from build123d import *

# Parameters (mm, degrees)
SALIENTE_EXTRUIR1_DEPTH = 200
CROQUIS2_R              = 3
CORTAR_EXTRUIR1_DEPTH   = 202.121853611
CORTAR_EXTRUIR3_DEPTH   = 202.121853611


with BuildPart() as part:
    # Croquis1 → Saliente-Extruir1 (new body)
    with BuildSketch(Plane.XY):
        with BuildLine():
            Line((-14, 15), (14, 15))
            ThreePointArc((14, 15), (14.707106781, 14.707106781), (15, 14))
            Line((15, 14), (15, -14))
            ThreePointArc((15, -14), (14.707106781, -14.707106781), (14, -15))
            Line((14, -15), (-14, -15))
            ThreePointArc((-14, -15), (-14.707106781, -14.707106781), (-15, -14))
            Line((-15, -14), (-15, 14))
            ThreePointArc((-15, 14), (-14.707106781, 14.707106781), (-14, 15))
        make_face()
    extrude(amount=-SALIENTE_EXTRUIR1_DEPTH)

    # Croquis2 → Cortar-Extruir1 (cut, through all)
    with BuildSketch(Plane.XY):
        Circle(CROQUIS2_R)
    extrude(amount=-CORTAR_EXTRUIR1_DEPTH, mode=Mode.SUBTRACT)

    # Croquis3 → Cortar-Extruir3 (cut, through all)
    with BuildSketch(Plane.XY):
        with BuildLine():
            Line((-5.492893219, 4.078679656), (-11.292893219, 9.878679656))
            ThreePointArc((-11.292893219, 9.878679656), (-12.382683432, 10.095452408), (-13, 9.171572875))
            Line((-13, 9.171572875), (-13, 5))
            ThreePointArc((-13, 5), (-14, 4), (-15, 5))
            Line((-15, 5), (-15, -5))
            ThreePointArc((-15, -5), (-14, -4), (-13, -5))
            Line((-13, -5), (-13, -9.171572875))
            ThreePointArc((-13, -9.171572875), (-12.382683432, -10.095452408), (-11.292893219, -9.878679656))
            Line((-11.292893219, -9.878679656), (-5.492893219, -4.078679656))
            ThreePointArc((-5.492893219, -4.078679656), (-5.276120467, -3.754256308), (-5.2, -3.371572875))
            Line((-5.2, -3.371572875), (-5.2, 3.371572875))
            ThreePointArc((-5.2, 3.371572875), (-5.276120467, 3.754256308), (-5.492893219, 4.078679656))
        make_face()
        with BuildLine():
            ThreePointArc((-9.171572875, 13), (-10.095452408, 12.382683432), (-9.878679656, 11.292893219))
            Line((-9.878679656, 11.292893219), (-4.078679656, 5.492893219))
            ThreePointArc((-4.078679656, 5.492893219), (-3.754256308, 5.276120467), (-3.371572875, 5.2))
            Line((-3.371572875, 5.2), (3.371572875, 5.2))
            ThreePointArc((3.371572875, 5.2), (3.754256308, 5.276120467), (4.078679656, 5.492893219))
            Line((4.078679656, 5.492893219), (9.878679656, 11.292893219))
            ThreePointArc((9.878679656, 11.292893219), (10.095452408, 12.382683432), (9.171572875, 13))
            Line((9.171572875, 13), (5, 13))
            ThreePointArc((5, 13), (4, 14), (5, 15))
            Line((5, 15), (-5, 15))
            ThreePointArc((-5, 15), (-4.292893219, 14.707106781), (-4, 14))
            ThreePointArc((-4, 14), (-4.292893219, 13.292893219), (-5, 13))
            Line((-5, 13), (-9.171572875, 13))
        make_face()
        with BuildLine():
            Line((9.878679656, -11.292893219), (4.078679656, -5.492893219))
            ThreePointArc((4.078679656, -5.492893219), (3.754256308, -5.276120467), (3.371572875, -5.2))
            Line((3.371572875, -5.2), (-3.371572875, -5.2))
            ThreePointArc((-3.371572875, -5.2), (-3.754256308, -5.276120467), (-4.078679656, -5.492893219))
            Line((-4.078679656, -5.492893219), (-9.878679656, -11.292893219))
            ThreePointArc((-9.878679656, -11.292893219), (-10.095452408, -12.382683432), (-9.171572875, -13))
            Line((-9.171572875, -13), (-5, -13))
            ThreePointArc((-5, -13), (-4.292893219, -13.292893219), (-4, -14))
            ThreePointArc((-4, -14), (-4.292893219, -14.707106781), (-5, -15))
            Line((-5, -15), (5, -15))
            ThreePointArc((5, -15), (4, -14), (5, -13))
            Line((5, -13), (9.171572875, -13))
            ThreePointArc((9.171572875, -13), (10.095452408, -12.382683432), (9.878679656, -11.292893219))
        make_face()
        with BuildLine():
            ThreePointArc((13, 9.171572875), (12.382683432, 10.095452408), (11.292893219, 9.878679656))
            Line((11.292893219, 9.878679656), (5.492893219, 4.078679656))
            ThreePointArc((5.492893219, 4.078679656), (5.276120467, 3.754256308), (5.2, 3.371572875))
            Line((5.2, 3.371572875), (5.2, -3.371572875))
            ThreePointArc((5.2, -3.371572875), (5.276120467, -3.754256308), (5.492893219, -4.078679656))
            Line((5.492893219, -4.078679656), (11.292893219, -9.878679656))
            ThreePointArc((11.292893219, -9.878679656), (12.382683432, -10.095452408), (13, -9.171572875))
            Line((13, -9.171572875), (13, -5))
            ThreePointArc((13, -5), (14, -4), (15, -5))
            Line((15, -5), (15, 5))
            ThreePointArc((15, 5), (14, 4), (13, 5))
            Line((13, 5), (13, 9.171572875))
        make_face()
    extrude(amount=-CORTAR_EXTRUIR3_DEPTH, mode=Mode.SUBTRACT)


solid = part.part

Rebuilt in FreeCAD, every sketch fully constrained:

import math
import FreeCAD as App
import Part
import Sketcher
from FreeCAD import Vector
Q = App.Units.Quantity

doc = App.newDocument("Part")
body = doc.addObject("PartDesign::Body", "Body")

# Sketch on XY plane
sketch1 = body.newObject("Sketcher::SketchObject", "Sketch")
sketch1.AttachmentSupport = (doc.getObject("XY_Plane"), [""])
sketch1.MapMode = "FlatFace"
sketch1.addGeometry(Part.LineSegment(Vector(14, 15, 0), Vector(-14, 15, 0)), False)
sketch1.addGeometry(Part.ArcOfCircle(Part.Circle(Vector(-14, 14, 0), Vector(0, 0, 1), 1), math.radians(90), math.radians(180)), False)
sketch1.addGeometry(Part.LineSegment(Vector(-15, 14, 0), Vector(-15, -14, 0)), False)
sketch1.addGeometry(Part.ArcOfCircle(Part.Circle(Vector(-14, -14, 0), Vector(0, 0, 1), 1), math.radians(-180), math.radians(-90)), False)
sketch1.addGeometry(Part.LineSegment(Vector(-14, -15, 0), Vector(14, -15, 0)), False)
sketch1.addGeometry(Part.ArcOfCircle(Part.Circle(Vector(14, -14, 0), Vector(0, 0, 1), 1), math.radians(-90), math.radians(0)), False)
sketch1.addGeometry(Part.LineSegment(Vector(15, -14, 0), Vector(15, 14, 0)), False)
sketch1.addGeometry(Part.ArcOfCircle(Part.Circle(Vector(14, 14, 0), Vector(0, 0, 1), 1), math.radians(0), math.radians(90)), False)
sketch1.addConstraint(Sketcher.Constraint("Tangent", 0, 2, 1, 1))
sketch1.addConstraint(Sketcher.Constraint("Tangent", 1, 2, 2, 1))
sketch1.addConstraint(Sketcher.Constraint("Tangent", 2, 2, 3, 1))
sketch1.addConstraint(Sketcher.Constraint("Tangent", 3, 2, 4, 1))
sketch1.addConstraint(Sketcher.Constraint("Tangent", 4, 2, 5, 1))
sketch1.addConstraint(Sketcher.Constraint("Tangent", 5, 2, 6, 1))
sketch1.addConstraint(Sketcher.Constraint("Tangent", 6, 2, 7, 1))
sketch1.addConstraint(Sketcher.Constraint("Tangent", 7, 2, 0, 1))
sketch1.addConstraint(Sketcher.Constraint("Horizontal", 0))
sketch1.addConstraint(Sketcher.Constraint("Vertical", 2))
sketch1.addConstraint(Sketcher.Constraint("Horizontal", 4))
sketch1.addConstraint(Sketcher.Constraint("Vertical", 6))
sketch1.addConstraint(Sketcher.Constraint("Equal", 1, 3))
sketch1.addConstraint(Sketcher.Constraint("Equal", 3, 5))
sketch1.addConstraint(Sketcher.Constraint("Equal", 5, 7))
sketch1.addConstraint(Sketcher.Constraint("Symmetric", 1, 3, 5, 3, -1, 1))
sketch1.addConstraint(Sketcher.Constraint("Equal", 4, 2))
sketch1.addConstraint(Sketcher.Constraint("Radius", 1, Q("1 mm")))
sketch1.addConstraint(Sketcher.Constraint("DistanceX", 0, 2, 0, 1, Q("28 mm")))
pad1 = body.newObject("PartDesign::Pad", "Pad")
pad1.Profile = sketch1
pad1.Length = 200
pad1.Reversed = True

# Sketch on XY plane
sketch2 = body.newObject("Sketcher::SketchObject", "Sketch001")
sketch2.AttachmentSupport = (doc.getObject("XY_Plane"), [""])
sketch2.MapMode = "FlatFace"
sketch2.addGeometry(Part.Circle(Vector(0, 0, 0), Vector(0, 0, 1), 3), False)
sketch2.addConstraint(Sketcher.Constraint("Coincident", 0, 3, -1, 1))
sketch2.addConstraint(Sketcher.Constraint("Diameter", 0, Q("6 mm")))
pocket1 = body.newObject("PartDesign::Pocket", "Pocket")
pocket1.Profile = sketch2
pocket1.Type = "ThroughAll"

# Sketch on XY plane
sketch3 = body.newObject("Sketcher::SketchObject", "Sketch002")
sketch3.AttachmentSupport = (doc.getObject("XY_Plane"), [""])
sketch3.MapMode = "FlatFace"
sketch3.addGeometry(Part.LineSegment(Vector(-5.5, 4.1, 0), Vector(-11.3, 9.9, 0)), False)
sketch3.addGeometry(Part.ArcOfCircle(Part.Circle(Vector(-12, 9.2, 0), Vector(0, 0, 1), 1), math.radians(45), math.radians(180)), False)
sketch3.addGeometry(Part.LineSegment(Vector(-13, 9.2, 0), Vector(-13, 5, 0)), False)
sketch3.addGeometry(Part.ArcOfCircle(Part.Circle(Vector(-14, 5, 0), Vector(0, 0, 1), 1), math.radians(180), math.radians(360)), False)
sketch3.addGeometry(Part.LineSegment(Vector(-15, 5, 0), Vector(-15, -5, 0)), False)
sketch3.addGeometry(Part.ArcOfCircle(Part.Circle(Vector(-14, -5, 0), Vector(0, 0, 1), 1), math.radians(0), math.radians(180)), False)
sketch3.addGeometry(Part.LineSegment(Vector(-13, -5, 0), Vector(-13, -9.2, 0)), False)
sketch3.addGeometry(Part.ArcOfCircle(Part.Circle(Vector(-12, -9.2, 0), Vector(0, 0, 1), 1), math.radians(180), math.radians(315)), False)
sketch3.addGeometry(Part.LineSegment(Vector(-11.3, -9.9, 0), Vector(-5.5, -4.1, 0)), False)
sketch3.addGeometry(Part.ArcOfCircle(Part.Circle(Vector(-6.2, -3.4, 0), Vector(0, 0, 1), 1), math.radians(-45), math.radians(0)), False)
sketch3.addGeometry(Part.LineSegment(Vector(-5.2, -3.4, 0), Vector(-5.2, 3.4, 0)), False)
sketch3.addGeometry(Part.ArcOfCircle(Part.Circle(Vector(-6.2, 3.4, 0), Vector(0, 0, 1), 1), math.radians(0), math.radians(45)), False)
sketch3.addGeometry(Part.ArcOfCircle(Part.Circle(Vector(-9.2, 12, 0), Vector(0, 0, 1), 1), math.radians(90), math.radians(225)), False)
sketch3.addGeometry(Part.LineSegment(Vector(-9.9, 11.3, 0), Vector(-4.1, 5.5, 0)), False)
sketch3.addGeometry(Part.ArcOfCircle(Part.Circle(Vector(-3.4, 6.2, 0), Vector(0, 0, 1), 1), math.radians(-135), math.radians(-90)), False)
sketch3.addGeometry(Part.LineSegment(Vector(-3.4, 5.2, 0), Vector(3.4, 5.2, 0)), False)
sketch3.addGeometry(Part.ArcOfCircle(Part.Circle(Vector(3.4, 6.2, 0), Vector(0, 0, 1), 1), math.radians(-90), math.radians(-45)), False)
sketch3.addGeometry(Part.LineSegment(Vector(4.1, 5.5, 0), Vector(9.9, 11.3, 0)), False)
sketch3.addGeometry(Part.ArcOfCircle(Part.Circle(Vector(9.2, 12, 0), Vector(0, 0, 1), 1), math.radians(-45), math.radians(90)), False)
sketch3.addGeometry(Part.LineSegment(Vector(9.2, 13, 0), Vector(5, 13, 0)), False)
sketch3.addGeometry(Part.ArcOfCircle(Part.Circle(Vector(5, 14, 0), Vector(0, 0, 1), 1), math.radians(90), math.radians(270)), False)
sketch3.addGeometry(Part.LineSegment(Vector(5, 15, 0), Vector(-5, 15, 0)), False)
sketch3.addGeometry(Part.ArcOfCircle(Part.Circle(Vector(-5, 14, 0), Vector(0, 0, 1), 1), math.radians(0), math.radians(90)), False)
sketch3.addGeometry(Part.ArcOfCircle(Part.Circle(Vector(-5, 14, 0), Vector(0, 0, 1), 1), math.radians(-90), math.radians(0)), False)
sketch3.addGeometry(Part.LineSegment(Vector(-5, 13, 0), Vector(-9.2, 13, 0)), False)
sketch3.addGeometry(Part.LineSegment(Vector(9.9, -11.3, 0), Vector(4.1, -5.5, 0)), False)
sketch3.addGeometry(Part.ArcOfCircle(Part.Circle(Vector(3.4, -6.2, 0), Vector(0, 0, 1), 1), math.radians(45), math.radians(90)), False)
sketch3.addGeometry(Part.LineSegment(Vector(3.4, -5.2, 0), Vector(-3.4, -5.2, 0)), False)
sketch3.addGeometry(Part.ArcOfCircle(Part.Circle(Vector(-3.4, -6.2, 0), Vector(0, 0, 1), 1), math.radians(90), math.radians(135)), False)
sketch3.addGeometry(Part.LineSegment(Vector(-4.1, -5.5, 0), Vector(-9.9, -11.3, 0)), False)
sketch3.addGeometry(Part.ArcOfCircle(Part.Circle(Vector(-9.2, -12, 0), Vector(0, 0, 1), 1), math.radians(135), math.radians(270)), False)
sketch3.addGeometry(Part.LineSegment(Vector(-9.2, -13, 0), Vector(-5, -13, 0)), False)
sketch3.addGeometry(Part.ArcOfCircle(Part.Circle(Vector(-5, -14, 0), Vector(0, 0, 1), 1), math.radians(0), math.radians(90)), False)
sketch3.addGeometry(Part.ArcOfCircle(Part.Circle(Vector(-5, -14, 0), Vector(0, 0, 1), 1), math.radians(-90), math.radians(0)), False)
sketch3.addGeometry(Part.LineSegment(Vector(-5, -15, 0), Vector(5, -15, 0)), False)
sketch3.addGeometry(Part.ArcOfCircle(Part.Circle(Vector(5, -14, 0), Vector(0, 0, 1), 1), math.radians(90), math.radians(270)), False)
sketch3.addGeometry(Part.LineSegment(Vector(5, -13, 0), Vector(9.2, -13, 0)), False)
sketch3.addGeometry(Part.ArcOfCircle(Part.Circle(Vector(9.2, -12, 0), Vector(0, 0, 1), 1), math.radians(-90), math.radians(45)), False)
sketch3.addGeometry(Part.ArcOfCircle(Part.Circle(Vector(12, 9.2, 0), Vector(0, 0, 1), 1), math.radians(0), math.radians(135)), False)
sketch3.addGeometry(Part.LineSegment(Vector(11.3, 9.9, 0), Vector(5.5, 4.1, 0)), False)
sketch3.addGeometry(Part.ArcOfCircle(Part.Circle(Vector(6.2, 3.4, 0), Vector(0, 0, 1), 1), math.radians(135), math.radians(180)), False)
sketch3.addGeometry(Part.LineSegment(Vector(5.2, 3.4, 0), Vector(5.2, -3.4, 0)), False)
sketch3.addGeometry(Part.ArcOfCircle(Part.Circle(Vector(6.2, -3.4, 0), Vector(0, 0, 1), 1), math.radians(180), math.radians(225)), False)
sketch3.addGeometry(Part.LineSegment(Vector(5.5, -4.1, 0), Vector(11.3, -9.9, 0)), False)
sketch3.addGeometry(Part.ArcOfCircle(Part.Circle(Vector(12, -9.2, 0), Vector(0, 0, 1), 1), math.radians(-135), math.radians(0)), False)
sketch3.addGeometry(Part.LineSegment(Vector(13, -9.2, 0), Vector(13, -5, 0)), False)
sketch3.addGeometry(Part.ArcOfCircle(Part.Circle(Vector(14, -5, 0), Vector(0, 0, 1), 1), math.radians(0), math.radians(180)), False)
sketch3.addGeometry(Part.LineSegment(Vector(15, -5, 0), Vector(15, 5, 0)), False)
sketch3.addGeometry(Part.ArcOfCircle(Part.Circle(Vector(14, 5, 0), Vector(0, 0, 1), 1), math.radians(180), math.radians(360)), False)
sketch3.addGeometry(Part.LineSegment(Vector(13, 5, 0), Vector(13, 9.2, 0)), False)
sketch3.addConstraint(Sketcher.Constraint("Tangent", 0, 2, 1, 1))
sketch3.addConstraint(Sketcher.Constraint("Tangent", 1, 2, 2, 1))
sketch3.addConstraint(Sketcher.Constraint("Tangent", 2, 2, 3, 2))
sketch3.addConstraint(Sketcher.Constraint("Tangent", 3, 1, 4, 1))
sketch3.addConstraint(Sketcher.Constraint("Tangent", 4, 2, 5, 2))
sketch3.addConstraint(Sketcher.Constraint("Tangent", 5, 1, 6, 1))
sketch3.addConstraint(Sketcher.Constraint("Tangent", 6, 2, 7, 1))
sketch3.addConstraint(Sketcher.Constraint("Tangent", 7, 2, 8, 1))
sketch3.addConstraint(Sketcher.Constraint("Tangent", 8, 2, 9, 1))
sketch3.addConstraint(Sketcher.Constraint("Tangent", 9, 2, 10, 1))
sketch3.addConstraint(Sketcher.Constraint("Tangent", 10, 2, 11, 1))
sketch3.addConstraint(Sketcher.Constraint("Tangent", 11, 2, 0, 1))
sketch3.addConstraint(Sketcher.Constraint("Tangent", 12, 2, 13, 1))
sketch3.addConstraint(Sketcher.Constraint("Tangent", 13, 2, 14, 1))
sketch3.addConstraint(Sketcher.Constraint("Tangent", 14, 2, 15, 1))
sketch3.addConstraint(Sketcher.Constraint("Tangent", 15, 2, 16, 1))
sketch3.addConstraint(Sketcher.Constraint("Tangent", 16, 2, 17, 1))
sketch3.addConstraint(Sketcher.Constraint("Tangent", 17, 2, 18, 1))
sketch3.addConstraint(Sketcher.Constraint("Tangent", 18, 2, 19, 1))
sketch3.addConstraint(Sketcher.Constraint("Tangent", 19, 2, 20, 2))
sketch3.addConstraint(Sketcher.Constraint("Tangent", 20, 1, 21, 1))
sketch3.addConstraint(Sketcher.Constraint("Tangent", 21, 2, 22, 2))
sketch3.addConstraint(Sketcher.Constraint("Tangent", 22, 1, 23, 2))
sketch3.addConstraint(Sketcher.Constraint("Tangent", 23, 1, 24, 1))
sketch3.addConstraint(Sketcher.Constraint("Tangent", 24, 2, 12, 1))
sketch3.addConstraint(Sketcher.Constraint("Tangent", 25, 2, 26, 1))
sketch3.addConstraint(Sketcher.Constraint("Tangent", 26, 2, 27, 1))
sketch3.addConstraint(Sketcher.Constraint("Tangent", 27, 2, 28, 1))
sketch3.addConstraint(Sketcher.Constraint("Tangent", 28, 2, 29, 1))
sketch3.addConstraint(Sketcher.Constraint("Tangent", 29, 2, 30, 1))
sketch3.addConstraint(Sketcher.Constraint("Tangent", 30, 2, 31, 1))
sketch3.addConstraint(Sketcher.Constraint("Tangent", 31, 2, 32, 2))
sketch3.addConstraint(Sketcher.Constraint("Tangent", 32, 1, 33, 2))
sketch3.addConstraint(Sketcher.Constraint("Tangent", 33, 1, 34, 1))
sketch3.addConstraint(Sketcher.Constraint("Tangent", 34, 2, 35, 2))
sketch3.addConstraint(Sketcher.Constraint("Tangent", 35, 1, 36, 1))
sketch3.addConstraint(Sketcher.Constraint("Tangent", 36, 2, 37, 1))
sketch3.addConstraint(Sketcher.Constraint("Tangent", 37, 2, 25, 1))
sketch3.addConstraint(Sketcher.Constraint("Tangent", 38, 2, 39, 1))
sketch3.addConstraint(Sketcher.Constraint("Tangent", 39, 2, 40, 1))
sketch3.addConstraint(Sketcher.Constraint("Tangent", 40, 2, 41, 1))
sketch3.addConstraint(Sketcher.Constraint("Tangent", 41, 2, 42, 1))
sketch3.addConstraint(Sketcher.Constraint("Tangent", 42, 2, 43, 1))
sketch3.addConstraint(Sketcher.Constraint("Tangent", 43, 2, 44, 1))
sketch3.addConstraint(Sketcher.Constraint("Tangent", 44, 2, 45, 1))
sketch3.addConstraint(Sketcher.Constraint("Tangent", 45, 2, 46, 2))
sketch3.addConstraint(Sketcher.Constraint("Tangent", 46, 1, 47, 1))
sketch3.addConstraint(Sketcher.Constraint("Tangent", 47, 2, 48, 2))
sketch3.addConstraint(Sketcher.Constraint("Tangent", 48, 1, 49, 1))
sketch3.addConstraint(Sketcher.Constraint("Tangent", 49, 2, 38, 1))
sketch3.addConstraint(Sketcher.Constraint("Vertical", 2))
sketch3.addConstraint(Sketcher.Constraint("Vertical", 4))
sketch3.addConstraint(Sketcher.Constraint("Vertical", 6))
sketch3.addConstraint(Sketcher.Constraint("Vertical", 10))
sketch3.addConstraint(Sketcher.Constraint("Horizontal", 15))
sketch3.addConstraint(Sketcher.Constraint("Horizontal", 19))
sketch3.addConstraint(Sketcher.Constraint("Horizontal", 21))
sketch3.addConstraint(Sketcher.Constraint("Horizontal", 24))
sketch3.addConstraint(Sketcher.Constraint("Horizontal", 27))
sketch3.addConstraint(Sketcher.Constraint("Horizontal", 31))
sketch3.addConstraint(Sketcher.Constraint("Horizontal", 34))
sketch3.addConstraint(Sketcher.Constraint("Horizontal", 36))
sketch3.addConstraint(Sketcher.Constraint("Vertical", 41))
sketch3.addConstraint(Sketcher.Constraint("Vertical", 45))
sketch3.addConstraint(Sketcher.Constraint("Vertical", 47))
sketch3.addConstraint(Sketcher.Constraint("Vertical", 49))
sketch3.addConstraint(Sketcher.Constraint("Equal", 1, 3))
sketch3.addConstraint(Sketcher.Constraint("Equal", 3, 5))
sketch3.addConstraint(Sketcher.Constraint("Equal", 5, 7))
sketch3.addConstraint(Sketcher.Constraint("Equal", 7, 9))
sketch3.addConstraint(Sketcher.Constraint("Equal", 9, 11))
sketch3.addConstraint(Sketcher.Constraint("Equal", 11, 12))
sketch3.addConstraint(Sketcher.Constraint("Equal", 12, 14))
sketch3.addConstraint(Sketcher.Constraint("Equal", 14, 16))
sketch3.addConstraint(Sketcher.Constraint("Equal", 16, 18))
sketch3.addConstraint(Sketcher.Constraint("Equal", 18, 20))
sketch3.addConstraint(Sketcher.Constraint("Equal", 20, 22))
sketch3.addConstraint(Sketcher.Constraint("Equal", 22, 23))
sketch3.addConstraint(Sketcher.Constraint("Equal", 23, 26))
sketch3.addConstraint(Sketcher.Constraint("Equal", 26, 28))
sketch3.addConstraint(Sketcher.Constraint("Equal", 28, 30))
sketch3.addConstraint(Sketcher.Constraint("Equal", 30, 32))
sketch3.addConstraint(Sketcher.Constraint("Equal", 32, 33))
sketch3.addConstraint(Sketcher.Constraint("Equal", 33, 35))
sketch3.addConstraint(Sketcher.Constraint("Equal", 35, 37))
sketch3.addConstraint(Sketcher.Constraint("Equal", 37, 38))
sketch3.addConstraint(Sketcher.Constraint("Equal", 38, 40))
sketch3.addConstraint(Sketcher.Constraint("Equal", 40, 42))
sketch3.addConstraint(Sketcher.Constraint("Equal", 42, 44))
sketch3.addConstraint(Sketcher.Constraint("Equal", 44, 46))
sketch3.addConstraint(Sketcher.Constraint("Equal", 46, 48))
sketch3.addConstraint(Sketcher.Constraint("Symmetric", 14, 3, 26, 3, -1, 1))
sketch3.addConstraint(Sketcher.Constraint("Symmetric", 18, 3, 30, 3, -1, 1))
sketch3.addConstraint(Sketcher.Constraint("Symmetric", 7, 3, 38, 3, -1, 1))
sketch3.addConstraint(Sketcher.Constraint("Symmetric", 9, 3, 40, 3, -1, 1))
sketch3.addConstraint(Sketcher.Constraint("Symmetric", 11, 2, 42, 2, -1, 1))
sketch3.addConstraint(Sketcher.Constraint("Symmetric", 13, 2, 16, 2, -2))
sketch3.addConstraint(Sketcher.Constraint("Symmetric", 25, 2, 28, 2, -2))
sketch3.addConstraint(Sketcher.Constraint("Symmetric", 0, 2, 38, 2, -2))
sketch3.addConstraint(Sketcher.Constraint("Symmetric", 22, 1, 32, 1, -1))
sketch3.addConstraint(Sketcher.Constraint("Perpendicular", 0, 8))
sketch3.addConstraint(Sketcher.Constraint("Perpendicular", 8, 13))
sketch3.addConstraint(Sketcher.Constraint("Horizontal", 5, 3, 46, 3))
sketch3.addConstraint(Sketcher.Constraint("Horizontal", 3, 3, 48, 3))
sketch3.addConstraint(Sketcher.Constraint("Horizontal", 23, 3, 22, 1))
sketch3.addConstraint(Sketcher.Constraint("Vertical", 20, 3, 35, 3))
sketch3.addConstraint(Sketcher.Constraint("Equal", 19, 24))
sketch3.addConstraint(Sketcher.Constraint("Equal", 36, 2))
sketch3.addConstraint(Sketcher.Constraint("Equal", 34, 4))
sketch3.addConstraint(Sketcher.Constraint("Equal", 2, 6))
sketch3.addConstraint(Sketcher.Constraint("Equal", 27, 10))
sketch3.addConstraint(Sketcher.Constraint("Radius", 1, Q("1 mm")))
sketch3.addConstraint(Sketcher.Constraint("DistanceX", 21, 2, 21, 1, Q("10 mm")))
sketch3.addConstraint(Sketcher.Constraint("DistanceX", 1, 3, -1, 1, Q("12 mm")))
sketch3.addConstraint(Sketcher.Constraint("DistanceY", -1, 1, 12, 3, Q("12 mm")))
sketch3.addConstraint(Sketcher.Constraint("DistanceX", 9, 3, -1, 1, Q("6.2 mm")))
sketch3.addConstraint(Sketcher.Constraint("DistanceX", 15, 1, 15, 2, Q("6.743146 mm")))
pocket2 = body.newObject("PartDesign::Pocket", "Pocket001")
pocket2.Profile = sketch3
pocket2.Type = "ThroughAll"

doc.recompute()
